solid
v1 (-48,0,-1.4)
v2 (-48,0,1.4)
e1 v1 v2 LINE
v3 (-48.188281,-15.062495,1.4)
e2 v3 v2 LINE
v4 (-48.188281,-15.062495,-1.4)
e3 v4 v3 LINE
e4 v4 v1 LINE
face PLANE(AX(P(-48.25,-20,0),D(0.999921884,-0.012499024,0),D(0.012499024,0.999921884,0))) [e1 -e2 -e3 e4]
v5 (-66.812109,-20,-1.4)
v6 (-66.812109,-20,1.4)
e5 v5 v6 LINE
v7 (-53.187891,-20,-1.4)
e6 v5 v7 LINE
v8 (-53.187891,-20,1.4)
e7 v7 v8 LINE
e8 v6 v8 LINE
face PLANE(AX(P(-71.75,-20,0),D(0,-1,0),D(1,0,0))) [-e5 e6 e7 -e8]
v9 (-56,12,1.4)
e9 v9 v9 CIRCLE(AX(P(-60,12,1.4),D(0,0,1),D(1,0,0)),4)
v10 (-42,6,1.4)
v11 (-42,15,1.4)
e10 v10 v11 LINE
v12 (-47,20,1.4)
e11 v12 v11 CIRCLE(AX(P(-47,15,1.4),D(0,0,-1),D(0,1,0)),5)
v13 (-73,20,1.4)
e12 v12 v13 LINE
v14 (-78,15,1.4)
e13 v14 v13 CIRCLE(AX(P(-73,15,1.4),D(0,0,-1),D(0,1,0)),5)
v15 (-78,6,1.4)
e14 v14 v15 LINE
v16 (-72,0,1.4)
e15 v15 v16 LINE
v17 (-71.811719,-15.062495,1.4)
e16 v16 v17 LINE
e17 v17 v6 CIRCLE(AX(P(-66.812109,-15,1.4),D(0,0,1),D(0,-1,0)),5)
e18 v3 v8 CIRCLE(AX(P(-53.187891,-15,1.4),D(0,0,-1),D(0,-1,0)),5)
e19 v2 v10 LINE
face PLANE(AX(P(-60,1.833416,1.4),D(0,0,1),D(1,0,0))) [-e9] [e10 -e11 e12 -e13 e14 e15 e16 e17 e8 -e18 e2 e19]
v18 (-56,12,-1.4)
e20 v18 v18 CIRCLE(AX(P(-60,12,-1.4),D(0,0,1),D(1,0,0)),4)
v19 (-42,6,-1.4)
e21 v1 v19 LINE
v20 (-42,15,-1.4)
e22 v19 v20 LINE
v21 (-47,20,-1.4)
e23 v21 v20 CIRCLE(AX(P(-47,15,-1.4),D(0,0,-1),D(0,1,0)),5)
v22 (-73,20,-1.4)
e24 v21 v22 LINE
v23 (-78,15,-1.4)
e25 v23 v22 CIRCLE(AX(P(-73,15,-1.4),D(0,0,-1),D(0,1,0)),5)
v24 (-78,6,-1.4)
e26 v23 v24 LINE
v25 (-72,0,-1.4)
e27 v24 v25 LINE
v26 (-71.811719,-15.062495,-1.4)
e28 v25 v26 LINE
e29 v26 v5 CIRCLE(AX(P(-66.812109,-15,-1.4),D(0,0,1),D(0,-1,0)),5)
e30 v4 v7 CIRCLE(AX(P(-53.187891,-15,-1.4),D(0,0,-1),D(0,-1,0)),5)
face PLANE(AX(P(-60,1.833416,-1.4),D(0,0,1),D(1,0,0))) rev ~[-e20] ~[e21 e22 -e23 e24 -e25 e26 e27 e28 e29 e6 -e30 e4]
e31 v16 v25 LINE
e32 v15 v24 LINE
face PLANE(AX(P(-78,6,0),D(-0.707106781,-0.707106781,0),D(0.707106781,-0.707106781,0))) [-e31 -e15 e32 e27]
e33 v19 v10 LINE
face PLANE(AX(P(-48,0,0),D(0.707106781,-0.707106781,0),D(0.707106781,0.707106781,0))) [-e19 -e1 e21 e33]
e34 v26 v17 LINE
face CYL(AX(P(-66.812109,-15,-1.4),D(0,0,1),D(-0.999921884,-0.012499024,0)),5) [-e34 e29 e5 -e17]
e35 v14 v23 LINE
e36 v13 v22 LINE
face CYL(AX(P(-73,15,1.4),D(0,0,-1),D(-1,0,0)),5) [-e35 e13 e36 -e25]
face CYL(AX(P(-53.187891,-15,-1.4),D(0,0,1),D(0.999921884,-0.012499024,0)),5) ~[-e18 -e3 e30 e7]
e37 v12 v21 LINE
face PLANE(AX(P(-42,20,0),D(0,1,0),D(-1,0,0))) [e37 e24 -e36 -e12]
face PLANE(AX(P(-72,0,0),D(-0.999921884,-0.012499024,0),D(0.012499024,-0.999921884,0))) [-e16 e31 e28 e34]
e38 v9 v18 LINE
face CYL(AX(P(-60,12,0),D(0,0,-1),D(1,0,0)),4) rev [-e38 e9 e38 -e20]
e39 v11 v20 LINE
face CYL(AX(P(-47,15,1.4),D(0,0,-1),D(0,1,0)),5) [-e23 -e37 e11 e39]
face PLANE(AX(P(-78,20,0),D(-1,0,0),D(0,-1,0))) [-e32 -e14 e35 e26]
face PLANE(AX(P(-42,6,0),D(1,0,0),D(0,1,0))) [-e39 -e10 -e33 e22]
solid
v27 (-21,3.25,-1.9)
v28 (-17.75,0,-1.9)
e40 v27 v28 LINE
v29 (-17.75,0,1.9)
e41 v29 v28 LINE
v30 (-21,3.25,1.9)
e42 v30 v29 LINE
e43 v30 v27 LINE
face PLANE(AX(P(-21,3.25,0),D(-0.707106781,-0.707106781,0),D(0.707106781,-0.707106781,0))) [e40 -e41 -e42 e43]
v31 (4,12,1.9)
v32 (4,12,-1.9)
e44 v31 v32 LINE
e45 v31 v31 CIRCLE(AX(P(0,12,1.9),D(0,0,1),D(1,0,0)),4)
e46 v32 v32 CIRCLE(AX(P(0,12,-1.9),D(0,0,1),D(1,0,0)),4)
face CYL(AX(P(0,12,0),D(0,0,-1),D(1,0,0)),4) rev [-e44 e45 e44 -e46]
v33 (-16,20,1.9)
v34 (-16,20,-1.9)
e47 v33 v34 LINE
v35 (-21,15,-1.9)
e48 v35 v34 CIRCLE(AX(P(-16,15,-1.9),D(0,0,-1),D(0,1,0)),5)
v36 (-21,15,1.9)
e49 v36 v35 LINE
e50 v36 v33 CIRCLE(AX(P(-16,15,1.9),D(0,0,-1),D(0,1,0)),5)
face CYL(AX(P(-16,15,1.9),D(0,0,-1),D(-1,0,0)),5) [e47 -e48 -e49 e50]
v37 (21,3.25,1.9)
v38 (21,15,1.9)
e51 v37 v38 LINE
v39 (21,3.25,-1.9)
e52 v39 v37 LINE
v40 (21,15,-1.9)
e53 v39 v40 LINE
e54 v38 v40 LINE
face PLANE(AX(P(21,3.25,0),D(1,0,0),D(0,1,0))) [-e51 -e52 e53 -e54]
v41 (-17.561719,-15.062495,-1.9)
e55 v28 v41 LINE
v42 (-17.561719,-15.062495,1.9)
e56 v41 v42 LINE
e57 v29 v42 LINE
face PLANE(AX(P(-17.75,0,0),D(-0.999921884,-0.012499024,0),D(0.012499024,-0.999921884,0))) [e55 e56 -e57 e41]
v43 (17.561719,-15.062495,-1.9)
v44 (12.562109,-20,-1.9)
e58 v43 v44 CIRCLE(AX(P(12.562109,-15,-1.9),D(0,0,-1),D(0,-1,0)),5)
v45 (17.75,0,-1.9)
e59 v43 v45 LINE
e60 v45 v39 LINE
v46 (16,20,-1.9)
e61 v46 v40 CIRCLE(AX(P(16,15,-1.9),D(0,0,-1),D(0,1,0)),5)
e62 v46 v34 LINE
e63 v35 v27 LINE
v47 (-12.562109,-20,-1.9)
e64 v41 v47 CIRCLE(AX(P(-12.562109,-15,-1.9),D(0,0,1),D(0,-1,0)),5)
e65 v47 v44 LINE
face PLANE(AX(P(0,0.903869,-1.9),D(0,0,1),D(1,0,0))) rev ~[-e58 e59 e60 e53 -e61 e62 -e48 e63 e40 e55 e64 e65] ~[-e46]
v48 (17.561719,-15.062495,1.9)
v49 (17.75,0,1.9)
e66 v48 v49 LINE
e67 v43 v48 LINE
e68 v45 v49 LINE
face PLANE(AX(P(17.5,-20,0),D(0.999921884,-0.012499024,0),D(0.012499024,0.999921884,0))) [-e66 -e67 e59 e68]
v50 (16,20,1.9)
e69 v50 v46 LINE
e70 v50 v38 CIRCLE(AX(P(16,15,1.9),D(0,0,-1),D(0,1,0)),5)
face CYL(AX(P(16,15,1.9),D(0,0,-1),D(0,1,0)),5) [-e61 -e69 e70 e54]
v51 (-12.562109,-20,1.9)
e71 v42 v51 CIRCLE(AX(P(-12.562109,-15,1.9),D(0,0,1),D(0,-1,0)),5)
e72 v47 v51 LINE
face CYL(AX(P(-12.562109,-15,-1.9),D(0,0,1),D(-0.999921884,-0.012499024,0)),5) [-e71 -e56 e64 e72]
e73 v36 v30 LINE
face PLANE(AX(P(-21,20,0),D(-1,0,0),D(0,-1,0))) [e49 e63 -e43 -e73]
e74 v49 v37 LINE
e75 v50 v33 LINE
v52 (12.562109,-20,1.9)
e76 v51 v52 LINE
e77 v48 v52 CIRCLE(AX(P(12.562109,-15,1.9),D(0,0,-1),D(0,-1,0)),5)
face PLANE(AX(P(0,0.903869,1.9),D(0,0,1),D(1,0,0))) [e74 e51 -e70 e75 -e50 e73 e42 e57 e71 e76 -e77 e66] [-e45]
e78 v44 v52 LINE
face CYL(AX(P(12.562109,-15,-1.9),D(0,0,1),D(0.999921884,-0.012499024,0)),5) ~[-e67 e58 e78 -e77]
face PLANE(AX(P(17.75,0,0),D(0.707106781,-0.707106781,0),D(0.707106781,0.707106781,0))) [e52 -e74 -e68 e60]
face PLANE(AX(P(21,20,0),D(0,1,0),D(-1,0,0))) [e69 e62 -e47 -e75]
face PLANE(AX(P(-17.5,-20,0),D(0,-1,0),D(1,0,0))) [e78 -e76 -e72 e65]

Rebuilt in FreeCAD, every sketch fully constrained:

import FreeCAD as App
import Part
import Sketcher

V = App.Vector
Q = App.Units.Quantity


def edges_at(feature, points):
    """Names of the edges that pass closest to the given points."""
    edges = feature.Shape.Edges
    near = lambda p: min(range(len(edges)), key=lambda i: edges[i].distToShape(Part.Vertex(*p))[0])
    return sorted({f"Edge{near(p) + 1}" for p in points})

doc = App.newDocument("Part")
body = doc.addObject("PartDesign::Body", "Body")

sketch1 = doc.addObject("Sketcher::SketchObject", "Sketch")
body.addObject(sketch1)
sketch1.AttachmentSupport = (doc.XY_Plane, [""])
sketch1.MapMode = "FlatFace"
sketch1.addGeometry(Part.LineSegment(V(-17.75, 0, 0), V(-17.5, -20, 0)), False)
sketch1.addGeometry(Part.LineSegment(V(-17.5, -20, 0), V(17.5, -20, 0)), False)
sketch1.addGeometry(Part.LineSegment(V(17.5, -20, 0), V(17.75, 0, 0)), False)
sketch1.addGeometry(Part.LineSegment(V(17.75, 0, 0), V(21, 3.25, 0)), False)
sketch1.addGeometry(Part.LineSegment(V(21, 3.25, 0), V(21, 20, 0)), False)
sketch1.addGeometry(Part.LineSegment(V(21, 20, 0), V(-21, 20, 0)), False)
sketch1.addGeometry(Part.LineSegment(V(-21, 20, 0), V(-21, 3.25, 0)), False)
sketch1.addGeometry(Part.LineSegment(V(-21, 3.25, 0), V(-17.75, 0, 0)), False)
sketch1.addGeometry(Part.Circle(V(0, 12, 0), V(0, 0, 1), 4), False)
sketch1.addConstraint(Sketcher.Constraint("Coincident", 0, 2, 1, 1))
sketch1.addConstraint(Sketcher.Constraint("Coincident", 1, 2, 2, 1))
sketch1.addConstraint(Sketcher.Constraint("Coincident", 2, 2, 3, 1))
sketch1.addConstraint(Sketcher.Constraint("Coincident", 3, 2, 4, 1))
sketch1.addConstraint(Sketcher.Constraint("Coincident", 4, 2, 5, 1))
sketch1.addConstraint(Sketcher.Constraint("Coincident", 5, 2, 6, 1))
sketch1.addConstraint(Sketcher.Constraint("Coincident", 6, 2, 7, 1))
sketch1.addConstraint(Sketcher.Constraint("Coincident", 7, 2, 0, 1))
sketch1.addConstraint(Sketcher.Constraint("Horizontal", 1))
sketch1.addConstraint(Sketcher.Constraint("Vertical", 4))
sketch1.addConstraint(Sketcher.Constraint("Horizontal", 5))
sketch1.addConstraint(Sketcher.Constraint("Vertical", 6))
sketch1.addConstraint(Sketcher.Constraint("Symmetric", 2, 2, 7, 2, -1, 1))
sketch1.addConstraint(Sketcher.Constraint("Symmetric", 3, 2, 6, 2, -2))
sketch1.addConstraint(Sketcher.Constraint("PointOnObject", 8, 3, -2))
sketch1.addConstraint(Sketcher.Constraint("PointOnObject", 2, 2, -1))
sketch1.addConstraint(Sketcher.Constraint("Perpendicular", 3, 7))
sketch1.addConstraint(Sketcher.Constraint("Equal", 0, 2))
sketch1.addConstraint(Sketcher.Constraint("Diameter", 8, Q("8 mm")))
sketch1.addConstraint(Sketcher.Constraint("DistanceX", 1, 1, 1, 2, Q("35 mm")))
sketch1.addConstraint(Sketcher.Constraint("DistanceX", 5, 2, 5, 1, Q("42 mm")))
sketch1.addConstraint(Sketcher.Constraint("DistanceY", -1, 1, 8, 3, Q("12 mm")))
sketch1.addConstraint(Sketcher.Constraint("DistanceY", 0, 2, -1, 1, Q("20 mm")))
sketch1.addConstraint(Sketcher.Constraint("DistanceY", -1, 1, 4, 2, Q("20 mm")))
sketch1.addConstraint(Sketcher.Constraint("DistanceY", 4, 1, 4, 2, Q("16.75 mm")))
pad1 = doc.addObject("PartDesign::Pad", "Pad")
body.addObject(pad1)
pad1.Profile = sketch1
pad1.Length = 3.8
pad1.Midplane = True
doc.recompute()

fillet = doc.addObject("PartDesign::Fillet", "Fillet")
body.addObject(fillet)
fillet.Base = (pad1, edges_at(pad1, [
    (-21, 20, 0),
    (21, 20, 0),
    (17.5, -20, 0),
    (-17.5, -20, 0),
]))
fillet.Radius = 5
body2 = doc.addObject("PartDesign::Body", "Body001")

sketch2 = doc.addObject("Sketcher::SketchObject", "Sketch001")
body2.addObject(sketch2)
sketch2.AttachmentSupport = (doc.getObject("XY_Plane001"), [""])
sketch2.MapMode = "FlatFace"
sketch2.addGeometry(Part.LineSegment(V(-72, 0, 0), V(-71.75, -20, 0)), False)
sketch2.addGeometry(Part.LineSegment(V(-71.75, -20, 0), V(-48.25, -20, 0)), False)
sketch2.addGeometry(Part.LineSegment(V(-48.25, -20, 0), V(-48, 0, 0)), False)
sketch2.addGeometry(Part.LineSegment(V(-48, 0, 0), V(-42, 6, 0)), False)
sketch2.addGeometry(Part.LineSegment(V(-42, 6, 0), V(-42, 20, 0)), False)
sketch2.addGeometry(Part.LineSegment(V(-42, 20, 0), V(-78, 20, 0)), False)
sketch2.addGeometry(Part.LineSegment(V(-78, 20, 0), V(-78, 6, 0)), False)
sketch2.addGeometry(Part.LineSegment(V(-78, 6, 0), V(-72, 0, 0)), False)
sketch2.addGeometry(Part.Circle(V(-60, 12, 0), V(0, 0, 1), 4), False)
sketch2.addConstraint(Sketcher.Constraint("Coincident", 0, 2, 1, 1))
sketch2.addConstraint(Sketcher.Constraint("Coincident", 1, 2, 2, 1))
sketch2.addConstraint(Sketcher.Constraint("Coincident", 2, 2, 3, 1))
sketch2.addConstraint(Sketcher.Constraint("Coincident", 3, 2, 4, 1))
sketch2.addConstraint(Sketcher.Constraint("Coincident", 4, 2, 5, 1))
sketch2.addConstraint(Sketcher.Constraint("Coincident", 5, 2, 6, 1))
sketch2.addConstraint(Sketcher.Constraint("Coincident", 6, 2, 7, 1))
sketch2.addConstraint(Sketcher.Constraint("Coincident", 7, 2, 0, 1))
sketch2.addConstraint(Sketcher.Constraint("Horizontal", 1))
sketch2.addConstraint(Sketcher.Constraint("Vertical", 4))
sketch2.addConstraint(Sketcher.Constraint("Horizontal", 5))
sketch2.addConstraint(Sketcher.Constraint("Vertical", 6))
sketch2.addConstraint(Sketcher.Constraint("PointOnObject", 2, 2, -1))
sketch2.addConstraint(Sketcher.Constraint("PointOnObject", 7, 2, -1))
sketch2.addConstraint(Sketcher.Constraint("Perpendicular", 3, 7))
sketch2.addConstraint(Sketcher.Constraint("Horizontal", 3, 2, 6, 2))
sketch2.addConstraint(Sketcher.Constraint("Equal", 0, 2))
sketch2.addConstraint(Sketcher.Constraint("Equal", 3, 7))
sketch2.addConstraint(Sketcher.Constraint("Diameter", 8, Q("8 mm")))
sketch2.addConstraint(Sketcher.Constraint("DistanceX", 5, 2, 5, 1, Q("36 mm")))
sketch2.addConstraint(Sketcher.Constraint("DistanceY", 4, 1, 4, 2, Q("14 mm")))
sketch2.addConstraint(Sketcher.Constraint("DistanceX", 1, 1, 1, 2, Q("23.5 mm")))
sketch2.addConstraint(Sketcher.Constraint("DistanceX", 8, 3, -1, 1, Q("60 mm")))
sketch2.addConstraint(Sketcher.Constraint("DistanceY", -1, 1, 8, 3, Q("12 mm")))
sketch2.addConstraint(Sketcher.Constraint("DistanceY", 0, 2, -1, 1, Q("20 mm")))
sketch2.addConstraint(Sketcher.Constraint("DistanceX", 2, 2, -1, 1, Q("48 mm")))
sketch2.addConstraint(Sketcher.Constraint("DistanceX", 3, 2, -1, 1, Q("42 mm")))
pad2 = doc.addObject("PartDesign::Pad", "Pad001")
body2.addObject(pad2)
pad2.Profile = sketch2
pad2.Length = 2.8
pad2.Midplane = True
doc.recompute()

fillet2 = doc.addObject("PartDesign::Fillet", "Fillet001")
body2.addObject(fillet2)
fillet2.Base = (pad2, edges_at(pad2, [
    (-71.75, -20, 0),
    (-48.25, -20, 0),
    (-42, 20, 0),
    (-78, 20, 0),
]))
fillet2.Radius = 5

doc.recompute()
